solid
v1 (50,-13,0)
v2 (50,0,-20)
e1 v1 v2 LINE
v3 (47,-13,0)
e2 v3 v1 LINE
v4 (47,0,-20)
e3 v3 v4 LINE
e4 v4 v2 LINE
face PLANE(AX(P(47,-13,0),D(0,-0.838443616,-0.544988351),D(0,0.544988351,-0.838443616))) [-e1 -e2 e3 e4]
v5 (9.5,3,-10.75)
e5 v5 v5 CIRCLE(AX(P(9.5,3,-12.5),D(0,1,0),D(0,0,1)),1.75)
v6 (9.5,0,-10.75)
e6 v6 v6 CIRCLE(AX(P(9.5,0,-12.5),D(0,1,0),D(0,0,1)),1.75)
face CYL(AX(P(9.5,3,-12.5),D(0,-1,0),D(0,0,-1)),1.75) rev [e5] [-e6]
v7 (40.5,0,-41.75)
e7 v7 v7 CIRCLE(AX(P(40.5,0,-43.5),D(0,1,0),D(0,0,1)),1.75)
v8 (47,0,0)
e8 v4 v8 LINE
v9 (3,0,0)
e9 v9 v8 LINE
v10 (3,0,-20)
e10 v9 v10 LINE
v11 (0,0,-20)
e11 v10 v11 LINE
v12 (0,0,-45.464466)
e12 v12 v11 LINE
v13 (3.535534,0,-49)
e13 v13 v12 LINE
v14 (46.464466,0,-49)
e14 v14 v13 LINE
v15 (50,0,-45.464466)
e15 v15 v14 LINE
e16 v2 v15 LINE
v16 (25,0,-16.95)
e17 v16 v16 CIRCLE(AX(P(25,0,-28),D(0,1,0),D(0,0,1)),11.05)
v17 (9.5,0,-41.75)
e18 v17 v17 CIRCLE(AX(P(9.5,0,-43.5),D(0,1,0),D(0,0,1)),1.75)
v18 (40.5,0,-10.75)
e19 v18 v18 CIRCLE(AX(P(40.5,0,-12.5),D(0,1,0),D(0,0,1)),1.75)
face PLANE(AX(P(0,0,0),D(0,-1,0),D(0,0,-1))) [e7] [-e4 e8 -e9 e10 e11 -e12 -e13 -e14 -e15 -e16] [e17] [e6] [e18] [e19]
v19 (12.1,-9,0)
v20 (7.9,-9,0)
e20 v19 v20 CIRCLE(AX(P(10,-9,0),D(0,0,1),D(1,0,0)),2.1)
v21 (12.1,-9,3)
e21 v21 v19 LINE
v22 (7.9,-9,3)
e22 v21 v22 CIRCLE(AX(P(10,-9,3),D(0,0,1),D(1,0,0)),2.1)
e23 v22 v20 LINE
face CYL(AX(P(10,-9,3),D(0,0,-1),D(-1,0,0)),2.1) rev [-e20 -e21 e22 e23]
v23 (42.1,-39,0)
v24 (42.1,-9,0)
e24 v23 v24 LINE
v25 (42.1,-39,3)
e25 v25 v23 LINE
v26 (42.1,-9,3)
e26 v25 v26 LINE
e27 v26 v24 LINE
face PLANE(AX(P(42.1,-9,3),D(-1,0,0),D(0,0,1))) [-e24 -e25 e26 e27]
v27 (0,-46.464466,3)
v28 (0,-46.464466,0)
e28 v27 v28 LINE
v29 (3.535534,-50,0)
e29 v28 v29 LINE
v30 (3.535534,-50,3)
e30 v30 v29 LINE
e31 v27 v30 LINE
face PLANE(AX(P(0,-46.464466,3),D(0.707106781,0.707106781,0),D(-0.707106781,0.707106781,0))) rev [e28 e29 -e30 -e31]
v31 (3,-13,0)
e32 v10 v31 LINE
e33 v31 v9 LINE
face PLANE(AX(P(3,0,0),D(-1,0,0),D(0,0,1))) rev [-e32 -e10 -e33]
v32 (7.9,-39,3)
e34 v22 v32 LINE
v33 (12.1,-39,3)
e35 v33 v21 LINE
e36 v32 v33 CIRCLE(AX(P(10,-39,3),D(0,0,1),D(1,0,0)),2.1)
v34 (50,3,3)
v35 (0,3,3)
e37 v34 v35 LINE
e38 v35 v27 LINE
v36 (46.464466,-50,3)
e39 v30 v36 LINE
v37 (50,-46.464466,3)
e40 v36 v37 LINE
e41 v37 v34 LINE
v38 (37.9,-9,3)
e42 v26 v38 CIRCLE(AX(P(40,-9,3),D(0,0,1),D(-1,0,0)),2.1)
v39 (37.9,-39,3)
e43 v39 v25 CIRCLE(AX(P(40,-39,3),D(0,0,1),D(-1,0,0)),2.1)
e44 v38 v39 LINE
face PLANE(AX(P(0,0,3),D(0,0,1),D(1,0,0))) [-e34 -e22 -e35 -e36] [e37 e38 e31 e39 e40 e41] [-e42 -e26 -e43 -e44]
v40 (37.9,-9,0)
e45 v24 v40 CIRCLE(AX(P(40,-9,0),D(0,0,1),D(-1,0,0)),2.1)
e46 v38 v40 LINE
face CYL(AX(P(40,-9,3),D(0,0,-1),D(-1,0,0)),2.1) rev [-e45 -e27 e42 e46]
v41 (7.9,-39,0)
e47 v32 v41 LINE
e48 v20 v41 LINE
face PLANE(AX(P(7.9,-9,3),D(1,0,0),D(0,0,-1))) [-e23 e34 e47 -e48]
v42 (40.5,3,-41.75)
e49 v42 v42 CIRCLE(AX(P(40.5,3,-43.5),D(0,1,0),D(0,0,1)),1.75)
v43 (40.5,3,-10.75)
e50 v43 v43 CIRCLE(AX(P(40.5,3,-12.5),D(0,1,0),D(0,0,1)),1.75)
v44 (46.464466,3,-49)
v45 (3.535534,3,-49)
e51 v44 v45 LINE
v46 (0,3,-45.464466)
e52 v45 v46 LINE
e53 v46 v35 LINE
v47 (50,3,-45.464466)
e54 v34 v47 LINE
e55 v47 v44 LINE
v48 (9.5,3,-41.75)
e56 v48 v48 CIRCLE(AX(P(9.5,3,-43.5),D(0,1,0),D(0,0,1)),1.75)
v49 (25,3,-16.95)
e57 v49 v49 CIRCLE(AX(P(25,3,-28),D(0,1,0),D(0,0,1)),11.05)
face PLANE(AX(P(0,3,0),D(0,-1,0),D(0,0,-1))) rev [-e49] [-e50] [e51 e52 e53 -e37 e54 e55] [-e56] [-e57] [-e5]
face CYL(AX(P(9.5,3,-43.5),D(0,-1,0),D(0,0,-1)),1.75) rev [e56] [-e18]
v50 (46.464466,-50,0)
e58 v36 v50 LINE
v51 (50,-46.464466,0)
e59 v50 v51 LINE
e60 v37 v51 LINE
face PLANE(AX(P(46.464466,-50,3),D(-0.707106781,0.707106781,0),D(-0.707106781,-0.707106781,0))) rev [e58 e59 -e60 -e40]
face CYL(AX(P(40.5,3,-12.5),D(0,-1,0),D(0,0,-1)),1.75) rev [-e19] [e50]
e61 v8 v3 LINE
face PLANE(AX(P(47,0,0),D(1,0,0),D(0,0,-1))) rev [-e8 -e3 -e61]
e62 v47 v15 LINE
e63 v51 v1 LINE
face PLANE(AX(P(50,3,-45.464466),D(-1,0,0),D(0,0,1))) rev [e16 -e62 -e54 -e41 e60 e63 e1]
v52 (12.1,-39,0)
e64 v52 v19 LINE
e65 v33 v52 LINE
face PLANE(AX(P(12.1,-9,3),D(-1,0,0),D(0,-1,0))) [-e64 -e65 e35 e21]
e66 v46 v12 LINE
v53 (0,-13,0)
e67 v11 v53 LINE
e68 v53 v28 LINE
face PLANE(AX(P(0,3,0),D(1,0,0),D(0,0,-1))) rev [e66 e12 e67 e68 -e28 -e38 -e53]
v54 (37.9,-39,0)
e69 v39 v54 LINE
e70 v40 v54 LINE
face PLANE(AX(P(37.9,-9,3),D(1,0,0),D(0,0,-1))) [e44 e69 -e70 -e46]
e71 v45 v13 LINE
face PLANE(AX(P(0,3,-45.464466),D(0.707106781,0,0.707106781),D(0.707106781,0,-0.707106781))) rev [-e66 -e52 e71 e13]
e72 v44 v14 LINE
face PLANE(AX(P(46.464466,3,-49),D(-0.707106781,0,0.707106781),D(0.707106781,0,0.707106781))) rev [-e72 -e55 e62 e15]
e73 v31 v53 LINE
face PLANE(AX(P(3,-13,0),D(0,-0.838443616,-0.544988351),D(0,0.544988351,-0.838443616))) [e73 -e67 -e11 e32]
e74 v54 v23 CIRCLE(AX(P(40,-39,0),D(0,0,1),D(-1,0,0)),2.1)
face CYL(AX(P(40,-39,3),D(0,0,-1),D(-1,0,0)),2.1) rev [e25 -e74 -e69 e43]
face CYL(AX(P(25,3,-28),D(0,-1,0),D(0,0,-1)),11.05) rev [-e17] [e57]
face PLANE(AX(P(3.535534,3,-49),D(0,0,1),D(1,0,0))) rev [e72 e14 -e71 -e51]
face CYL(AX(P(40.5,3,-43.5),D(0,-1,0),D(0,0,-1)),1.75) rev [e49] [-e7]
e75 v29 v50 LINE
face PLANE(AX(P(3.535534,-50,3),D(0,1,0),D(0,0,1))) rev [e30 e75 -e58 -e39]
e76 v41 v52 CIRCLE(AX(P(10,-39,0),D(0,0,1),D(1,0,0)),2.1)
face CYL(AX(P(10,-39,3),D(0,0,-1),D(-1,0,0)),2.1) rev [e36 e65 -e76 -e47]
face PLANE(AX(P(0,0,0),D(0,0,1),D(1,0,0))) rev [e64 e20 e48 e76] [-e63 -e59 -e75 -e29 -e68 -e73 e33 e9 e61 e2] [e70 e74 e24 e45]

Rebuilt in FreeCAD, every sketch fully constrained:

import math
import FreeCAD as App
import Part
import Sketcher
from FreeCAD import Vector

doc = App.newDocument("Part")
body = doc.addObject("PartDesign::Body", "Body")

# Sketch on XZ plane
sketch1 = body.newObject("Sketcher::SketchObject", "Sketch")
sketch1.AttachmentSupport = (doc.getObject("XZ_Plane"), [""])
sketch1.MapMode = "FlatFace"
sketch1.addGeometry([
    Part.LineSegment(Vector(0, -45.5, 0), Vector(0, 0, 0)),  # 0
    Part.LineSegment(Vector(0, 0, 0), Vector(50, 0, 0)),  # 1
    Part.LineSegment(Vector(50, 0, 0), Vector(50, -45.5, 0)),  # 2
    Part.LineSegment(Vector(50, -45.5, 0), Vector(46.5, -49, 0)),  # 3
    Part.LineSegment(Vector(46.5, -49, 0), Vector(3.5, -49, 0)),  # 4
    Part.LineSegment(Vector(3.5, -49, 0), Vector(0, -45.5, 0)),  # 5
    Part.Circle(Vector(40.5, -12.5, 0), Vector(0, 0, 1), 1.8),  # 6
    Part.Circle(Vector(9.5, -12.5, 0), Vector(0, 0, 1), 1.8),  # 7
    Part.Circle(Vector(40.5, -43.5, 0), Vector(0, 0, 1), 1.8),  # 8
    Part.Circle(Vector(25, -28, 0), Vector(0, 0, 1), 11.1),  # 9
    Part.Circle(Vector(9.5, -43.5, 0), Vector(0, 0, 1), 1.8),  # 10
], False)
sketch1.addConstraint([
    Sketcher.Constraint("Coincident", 0, 2, 1, 1),
    Sketcher.Constraint("Coincident", 1, 2, 2, 1),
    Sketcher.Constraint("Coincident", 2, 2, 3, 1),
    Sketcher.Constraint("Coincident", 3, 2, 4, 1),
    Sketcher.Constraint("Coincident", 4, 2, 5, 1),
    Sketcher.Constraint("Coincident", 5, 2, 0, 1),
    Sketcher.Constraint("Vertical", 0),
    Sketcher.Constraint("Horizontal", 1),
    Sketcher.Constraint("Vertical", 2),
    Sketcher.Constraint("Horizontal", 4),
    Sketcher.Constraint("Coincident", 0, 2, -1, 1),
    Sketcher.Constraint("Equal", 6, 7),
    Sketcher.Constraint("Equal", 7, 8),
    Sketcher.Constraint("Equal", 8, 10),
    Sketcher.Constraint("Perpendicular", 3, 5),
    Sketcher.Constraint("Horizontal", 6, 3, 7, 3),
    Sketcher.Constraint("Horizontal", 8, 3, 10, 3),
    Sketcher.Constraint("Horizontal", 2, 2, 5, 2),
    Sketcher.Constraint("Vertical", 6, 3, 8, 3),
    Sketcher.Constraint("Vertical", 7, 3, 10, 3),
    Sketcher.Constraint("Equal", 3, 5),
    Sketcher.Constraint("Diameter", 6, 3.5),
    Sketcher.Constraint("Diameter", 9, 22.1),
    Sketcher.Constraint("DistanceX", 1, 1, 1, 2, 50.0),
    Sketcher.Constraint("Distance", 3, 5.0),
    Sketcher.Constraint("DistanceX", -1, 1, 9, 3, 25.0),
    Sketcher.Constraint("DistanceY", 9, 3, -1, 1, 28.0),
    Sketcher.Constraint("DistanceY", 3, 2, -1, 1, 49.0),
    Sketcher.Constraint("DistanceX", 7, 3, 6, 3, 31.0),
    Sketcher.Constraint("DistanceY", 8, 3, 6, 3, 31.0),
    Sketcher.Constraint("DistanceX", -1, 1, 6, 3, 40.5),
    Sketcher.Constraint("DistanceY", 6, 3, -1, 1, 12.5),
])
pad1 = body.newObject("PartDesign::Pad", "Pad")
pad1.Profile = sketch1
pad1.Length = 3
pad1.Reversed = True

# Sketch on XY plane
sketch2 = body.newObject("Sketcher::SketchObject", "Sketch001")
sketch2.AttachmentSupport = (doc.getObject("XY_Plane"), [""])
sketch2.MapMode = "FlatFace"
sketch2.addGeometry([
    Part.LineSegment(Vector(0, 3, 0), Vector(0, -46.5, 0)),  # 0
    Part.LineSegment(Vector(0, -46.5, 0), Vector(3.5, -50, 0)),  # 1
    Part.LineSegment(Vector(3.5, -50, 0), Vector(46.5, -50, 0)),  # 2
    Part.LineSegment(Vector(46.5, -50, 0), Vector(50, -46.5, 0)),  # 3
    Part.LineSegment(Vector(50, -46.5, 0), Vector(50, 3, 0)),  # 4
    Part.LineSegment(Vector(50, 3, 0), Vector(0, 3, 0)),  # 5
    Part.ArcOfCircle(Part.Circle(Vector(10, -9, 0), Vector(0, 0, 1), 2.1), math.radians(0), math.radians(180)),  # 6
    Part.LineSegment(Vector(12.1, -9, 0), Vector(12.1, -39, 0)),  # 7
    Part.ArcOfCircle(Part.Circle(Vector(10, -39, 0), Vector(0, 0, 1), 2.1), math.radians(180), math.radians(360)),  # 8
    Part.LineSegment(Vector(7.9, -39, 0), Vector(7.9, -9, 0)),  # 9
    Part.LineSegment(Vector(37.9, -39, 0), Vector(37.9, -9, 0)),  # 10
    Part.ArcOfCircle(Part.Circle(Vector(40, -9, 0), Vector(0, 0, 1), 2.1), math.radians(0), math.radians(180)),  # 11
    Part.LineSegment(Vector(42.1, -9, 0), Vector(42.1, -39, 0)),  # 12
    Part.ArcOfCircle(Part.Circle(Vector(40, -39, 0), Vector(0, 0, 1), 2.1), math.radians(180), math.radians(360)),  # 13
], False)
sketch2.addConstraint([
    Sketcher.Constraint("Coincident", 0, 2, 1, 1),
    Sketcher.Constraint("Coincident", 1, 2, 2, 1),
    Sketcher.Constraint("Coincident", 2, 2, 3, 1),
    Sketcher.Constraint("Coincident", 3, 2, 4, 1),
    Sketcher.Constraint("Coincident", 4, 2, 5, 1),
    Sketcher.Constraint("Coincident", 5, 2, 0, 1),
    Sketcher.Constraint("Tangent", 6, 1, 7, 1),
    Sketcher.Constraint("Tangent", 7, 2, 8, 2),
    Sketcher.Constraint("Tangent", 8, 1, 9, 1),
    Sketcher.Constraint("Tangent", 9, 2, 6, 2),
    Sketcher.Constraint("Tangent", 10, 2, 11, 2),
    Sketcher.Constraint("Tangent", 11, 1, 12, 1),
    Sketcher.Constraint("Tangent", 12, 2, 13, 2),
    Sketcher.Constraint("Tangent", 13, 1, 10, 1),
    Sketcher.Constraint("Vertical", 0),
    Sketcher.Constraint("Horizontal", 2),
    Sketcher.Constraint("Vertical", 4),
    Sketcher.Constraint("Horizontal", 5),
    Sketcher.Constraint("Vertical", 7),
    Sketcher.Constraint("Vertical", 9),
    Sketcher.Constraint("Vertical", 10),
    Sketcher.Constraint("Vertical", 12),
    Sketcher.Constraint("Equal", 8, 11),
    Sketcher.Constraint("PointOnObject", 0, 2, -2),
    Sketcher.Constraint("Perpendicular", 1, 3),
    Sketcher.Constraint("Horizontal", 6, 3, 11, 3),
    Sketcher.Constraint("Horizontal", 8, 3, 13, 3),
    Sketcher.Constraint("Horizontal", 0, 2, 3, 2),
    Sketcher.Constraint("Equal", 1, 3),
    Sketcher.Constraint("Radius", 6, 2.1),
    Sketcher.Constraint("DistanceX", 5, 2, 5, 1, 50.0),
    Sketcher.Constraint("DistanceY", 7, 2, 7, 1, 30.0),
    Sketcher.Constraint("Distance", 1, 5.0),
    Sketcher.Constraint("DistanceX", -1, 1, 6, 3, 10.0),
    Sketcher.Constraint("DistanceY", 6, 3, -1, 1, 9.0),
    Sketcher.Constraint("DistanceX", -1, 1, 11, 3, 40.0),
    Sketcher.Constraint("DistanceY", 1, 2, -1, 1, 50.0),
    Sketcher.Constraint("DistanceY", -1, 1, 4, 2, 3.0),
])
pad2 = body.newObject("PartDesign::Pad", "Pad001")
pad2.Profile = sketch2
pad2.Length = 3

# Sketch on YZ plane
sketch3 = body.newObject("Sketcher::SketchObject", "Sketch002")
sketch3.AttachmentSupport = (doc.getObject("YZ_Plane"), [""])
sketch3.MapMode = "FlatFace"
sketch3.AttachmentOffset = App.Placement(Vector(0, 0, 50), App.Rotation())
sketch3.addGeometry([
    Part.LineSegment(Vector(0, 0, 0), Vector(-13, 0, 0)),
    Part.LineSegment(Vector(-13, 0, 0), Vector(0, -20, 0)),
    Part.LineSegment(Vector(0, -20, 0), Vector(0, 0, 0)),
], False)
sketch3.addConstraint([
    Sketcher.Constraint("Coincident", 0, 2, 1, 1),
    Sketcher.Constraint("Coincident", 1, 2, 2, 1),
    Sketcher.Constraint("Coincident", 2, 2, 0, 1),
    Sketcher.Constraint("Horizontal", 0),
    Sketcher.Constraint("Vertical", 2),
    Sketcher.Constraint("Coincident", 2, 2, -1, 1),
    Sketcher.Constraint("DistanceX", 0, 2, 0, 1, 13.0),
    Sketcher.Constraint("DistanceY", 2, 1, 2, 2, 20.0),
])
pad3 = body.newObject("PartDesign::Pad", "Pad002")
pad3.Profile = sketch3
pad3.Length = 3
pad3.Reversed = True

# Sketch on YZ plane
sketch4 = body.newObject("Sketcher::SketchObject", "Sketch003")
sketch4.AttachmentSupport = (doc.getObject("YZ_Plane"), [""])
sketch4.MapMode = "FlatFace"
sketch4.addGeometry([
    Part.LineSegment(Vector(0, 0, 0), Vector(0, -20, 0)),
    Part.LineSegment(Vector(0, -20, 0), Vector(-13, 0, 0)),
    Part.LineSegment(Vector(-13, 0, 0), Vector(0, 0, 0)),
], False)
sketch4.addConstraint([
    Sketcher.Constraint("Coincident", 0, 2, 1, 1),
    Sketcher.Constraint("Coincident", 1, 2, 2, 1),
    Sketcher.Constraint("Coincident", 2, 2, 0, 1),
    Sketcher.Constraint("Vertical", 0),
    Sketcher.Constraint("Horizontal", 2),
    Sketcher.Constraint("Coincident", 2, 2, -1, 1),
    Sketcher.Constraint("DistanceX", 2, 1, 2, 2, 13.0),
    Sketcher.Constraint("DistanceY", 0, 2, 0, 1, 20.0),
])
pad4 = body.newObject("PartDesign::Pad", "Pad003")
pad4.Profile = sketch4
pad4.Length = 3

doc.recompute()
